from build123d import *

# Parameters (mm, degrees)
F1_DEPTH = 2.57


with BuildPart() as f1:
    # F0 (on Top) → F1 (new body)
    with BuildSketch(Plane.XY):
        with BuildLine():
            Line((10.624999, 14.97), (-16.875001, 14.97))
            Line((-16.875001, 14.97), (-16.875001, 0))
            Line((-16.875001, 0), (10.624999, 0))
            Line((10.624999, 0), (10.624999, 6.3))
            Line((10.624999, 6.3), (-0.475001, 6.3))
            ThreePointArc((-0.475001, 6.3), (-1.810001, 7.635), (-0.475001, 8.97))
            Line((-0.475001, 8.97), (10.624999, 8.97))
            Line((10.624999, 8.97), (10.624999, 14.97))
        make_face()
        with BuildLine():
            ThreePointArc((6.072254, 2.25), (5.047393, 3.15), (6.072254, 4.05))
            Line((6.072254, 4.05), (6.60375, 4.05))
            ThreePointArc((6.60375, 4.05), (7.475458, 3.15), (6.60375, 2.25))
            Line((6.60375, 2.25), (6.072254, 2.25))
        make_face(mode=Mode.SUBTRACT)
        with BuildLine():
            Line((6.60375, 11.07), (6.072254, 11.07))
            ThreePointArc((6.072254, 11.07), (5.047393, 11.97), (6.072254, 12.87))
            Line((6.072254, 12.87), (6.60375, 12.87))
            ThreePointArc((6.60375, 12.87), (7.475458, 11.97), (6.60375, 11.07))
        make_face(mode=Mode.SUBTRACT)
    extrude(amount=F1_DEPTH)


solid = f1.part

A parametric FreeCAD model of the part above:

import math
import FreeCAD as App
import Part
import Sketcher

V = App.Vector

doc = App.newDocument("Part")
body = doc.addObject("PartDesign::Body", "Body")

# Sketch on XY plane
sketch1 = doc.addObject("Sketcher::SketchObject", "Sketch")
body.addObject(sketch1)
sketch1.AttachmentSupport = (doc.XY_Plane, [""])
sketch1.MapMode = "FlatFace"
sketch1.addGeometry([
    Part.LineSegment(V(10.6, 15, 0), V(-16.9, 15, 0)),  # 0
    Part.LineSegment(V(-16.9, 15, 0), V(-16.9, 0, 0)),  # 1
    Part.LineSegment(V(-16.9, 0, 0), V(10.6, 0, 0)),  # 2
    Part.LineSegment(V(10.6, 0, 0), V(10.6, 6.3, 0)),  # 3
    Part.LineSegment(V(10.6, 6.3, 0), V(-0.5, 6.3, 0)),  # 4
    Part.ArcOfCircle(Part.Circle(V(-0.5, 7.6, 0), V(0, 0, 1), 1.3), math.radians(90), math.radians(270)),  # 5
    Part.LineSegment(V(-0.5, 9, 0), V(10.6, 9, 0)),  # 6
    Part.LineSegment(V(10.6, 9, 0), V(10.6, 15, 0)),  # 7
    Part.LineSegment(V(6.6, 2.2, 0), V(6.1, 2.2, 0)),  # 8
    Part.ArcOfCircle(Part.Circle(V(6, 3.1, 0), V(0, 0, 1), 0.9), math.radians(83), math.radians(277)),  # 9
    Part.LineSegment(V(6.1, 4, 0), V(6.6, 4, 0)),  # 10
    Part.ArcOfCircle(Part.Circle(V(6.6, 3.1, 0), V(0, 0, 1), 0.9), math.radians(-88), math.radians(88)),  # 11
    Part.ArcOfCircle(Part.Circle(V(6.6, 12, 0), V(0, 0, 1), 0.9), math.radians(-88), math.radians(88)),  # 12
    Part.LineSegment(V(6.6, 11.1, 0), V(6.1, 11.1, 0)),  # 13
    Part.ArcOfCircle(Part.Circle(V(6, 12, 0), V(0, 0, 1), 0.9), math.radians(83), math.radians(277)),  # 14
    Part.LineSegment(V(6.1, 12.9, 0), V(6.6, 12.9, 0)),  # 15
], False)
sketch1.addConstraint([
    Sketcher.Constraint("Coincident", 0, 2, 1, 1),
    Sketcher.Constraint("Coincident", 1, 2, 2, 1),
    Sketcher.Constraint("Coincident", 2, 2, 3, 1),
    Sketcher.Constraint("Coincident", 3, 2, 4, 1),
    Sketcher.Constraint("Tangent", 4, 2, 5, 2),
    Sketcher.Constraint("Tangent", 5, 1, 6, 1),
    Sketcher.Constraint("Coincident", 6, 2, 7, 1),
    Sketcher.Constraint("Coincident", 7, 2, 0, 1),
    Sketcher.Constraint("Coincident", 8, 2, 9, 2),
    Sketcher.Constraint("Coincident", 9, 1, 10, 1),
    Sketcher.Constraint("Coincident", 10, 2, 11, 2),
    Sketcher.Constraint("Coincident", 11, 1, 8, 1),
    Sketcher.Constraint("Coincident", 12, 1, 13, 1),
    Sketcher.Constraint("Coincident", 13, 2, 14, 2),
    Sketcher.Constraint("Coincident", 14, 1, 15, 1),
    Sketcher.Constraint("Coincident", 15, 2, 12, 2),
    Sketcher.Constraint("Horizontal", 0),
    Sketcher.Constraint("Vertical", 1),
    Sketcher.Constraint("Horizontal", 2),
    Sketcher.Constraint("Vertical", 3),
    Sketcher.Constraint("Horizontal", 4),
    Sketcher.Constraint("Horizontal", 6),
    Sketcher.Constraint("Vertical", 7),
    Sketcher.Constraint("Horizontal", 8),
    Sketcher.Constraint("Horizontal", 10),
    Sketcher.Constraint("Horizontal", 13),
    Sketcher.Constraint("Horizontal", 15),
    Sketcher.Constraint("Equal", 11, 12),
    Sketcher.Constraint("Equal", 9, 14),
    Sketcher.Constraint("PointOnObject", 1, 2, -1),
    Sketcher.Constraint("Horizontal", 9, 3, 11, 3),
    Sketcher.Constraint("Horizontal", 12, 3, 14, 3),
    Sketcher.Constraint("Vertical", 11, 3, 12, 3),
    Sketcher.Constraint("Vertical", 9, 3, 14, 3),
    Sketcher.Constraint("Vertical", 3, 2, 6, 2),
    Sketcher.Constraint("Vertical", 8, 2, 9, 1),
    Sketcher.Constraint("Vertical", 11, 1, 12, 1),
    Sketcher.Constraint("Vertical", 13, 2, 14, 1),
    Sketcher.Constraint("DistanceY", 7, 1, 7, 2, 6.0),
    Sketcher.Constraint("DistanceX", 0, 2, 0, 1, 27.5),
    Sketcher.Constraint("DistanceX", 4, 2, 4, 1, 11.1),
    Sketcher.Constraint("DistanceY", 3, 1, 3, 2, 6.3),
    Sketcher.Constraint("Radius", 5, 1.335),
    Sketcher.Constraint("DistanceY", 14, 3, 0, 2, 3.0),
    Sketcher.Constraint("DistanceY", 8, 2, 9, 3, 0.9),
    Sketcher.Constraint("DistanceY", -1, 1, 9, 3, 3.15),
    Sketcher.Constraint("Radius", 11, 0.900459),
    Sketcher.Constraint("DistanceX", 5, 3, 9, 3, 6.43),
    Sketcher.Constraint("DistanceX", 9, 3, 11, 3, 0.62),
    Sketcher.Constraint("DistanceX", 5, 3, -1, 1, 0.475001),
    Sketcher.Constraint("Radius", 9, 0.907606),
])
pad1 = doc.addObject("PartDesign::Pad", "Pad")
body.addObject(pad1)
pad1.Profile = sketch1
pad1.Length = 2.57

doc.recompute()
